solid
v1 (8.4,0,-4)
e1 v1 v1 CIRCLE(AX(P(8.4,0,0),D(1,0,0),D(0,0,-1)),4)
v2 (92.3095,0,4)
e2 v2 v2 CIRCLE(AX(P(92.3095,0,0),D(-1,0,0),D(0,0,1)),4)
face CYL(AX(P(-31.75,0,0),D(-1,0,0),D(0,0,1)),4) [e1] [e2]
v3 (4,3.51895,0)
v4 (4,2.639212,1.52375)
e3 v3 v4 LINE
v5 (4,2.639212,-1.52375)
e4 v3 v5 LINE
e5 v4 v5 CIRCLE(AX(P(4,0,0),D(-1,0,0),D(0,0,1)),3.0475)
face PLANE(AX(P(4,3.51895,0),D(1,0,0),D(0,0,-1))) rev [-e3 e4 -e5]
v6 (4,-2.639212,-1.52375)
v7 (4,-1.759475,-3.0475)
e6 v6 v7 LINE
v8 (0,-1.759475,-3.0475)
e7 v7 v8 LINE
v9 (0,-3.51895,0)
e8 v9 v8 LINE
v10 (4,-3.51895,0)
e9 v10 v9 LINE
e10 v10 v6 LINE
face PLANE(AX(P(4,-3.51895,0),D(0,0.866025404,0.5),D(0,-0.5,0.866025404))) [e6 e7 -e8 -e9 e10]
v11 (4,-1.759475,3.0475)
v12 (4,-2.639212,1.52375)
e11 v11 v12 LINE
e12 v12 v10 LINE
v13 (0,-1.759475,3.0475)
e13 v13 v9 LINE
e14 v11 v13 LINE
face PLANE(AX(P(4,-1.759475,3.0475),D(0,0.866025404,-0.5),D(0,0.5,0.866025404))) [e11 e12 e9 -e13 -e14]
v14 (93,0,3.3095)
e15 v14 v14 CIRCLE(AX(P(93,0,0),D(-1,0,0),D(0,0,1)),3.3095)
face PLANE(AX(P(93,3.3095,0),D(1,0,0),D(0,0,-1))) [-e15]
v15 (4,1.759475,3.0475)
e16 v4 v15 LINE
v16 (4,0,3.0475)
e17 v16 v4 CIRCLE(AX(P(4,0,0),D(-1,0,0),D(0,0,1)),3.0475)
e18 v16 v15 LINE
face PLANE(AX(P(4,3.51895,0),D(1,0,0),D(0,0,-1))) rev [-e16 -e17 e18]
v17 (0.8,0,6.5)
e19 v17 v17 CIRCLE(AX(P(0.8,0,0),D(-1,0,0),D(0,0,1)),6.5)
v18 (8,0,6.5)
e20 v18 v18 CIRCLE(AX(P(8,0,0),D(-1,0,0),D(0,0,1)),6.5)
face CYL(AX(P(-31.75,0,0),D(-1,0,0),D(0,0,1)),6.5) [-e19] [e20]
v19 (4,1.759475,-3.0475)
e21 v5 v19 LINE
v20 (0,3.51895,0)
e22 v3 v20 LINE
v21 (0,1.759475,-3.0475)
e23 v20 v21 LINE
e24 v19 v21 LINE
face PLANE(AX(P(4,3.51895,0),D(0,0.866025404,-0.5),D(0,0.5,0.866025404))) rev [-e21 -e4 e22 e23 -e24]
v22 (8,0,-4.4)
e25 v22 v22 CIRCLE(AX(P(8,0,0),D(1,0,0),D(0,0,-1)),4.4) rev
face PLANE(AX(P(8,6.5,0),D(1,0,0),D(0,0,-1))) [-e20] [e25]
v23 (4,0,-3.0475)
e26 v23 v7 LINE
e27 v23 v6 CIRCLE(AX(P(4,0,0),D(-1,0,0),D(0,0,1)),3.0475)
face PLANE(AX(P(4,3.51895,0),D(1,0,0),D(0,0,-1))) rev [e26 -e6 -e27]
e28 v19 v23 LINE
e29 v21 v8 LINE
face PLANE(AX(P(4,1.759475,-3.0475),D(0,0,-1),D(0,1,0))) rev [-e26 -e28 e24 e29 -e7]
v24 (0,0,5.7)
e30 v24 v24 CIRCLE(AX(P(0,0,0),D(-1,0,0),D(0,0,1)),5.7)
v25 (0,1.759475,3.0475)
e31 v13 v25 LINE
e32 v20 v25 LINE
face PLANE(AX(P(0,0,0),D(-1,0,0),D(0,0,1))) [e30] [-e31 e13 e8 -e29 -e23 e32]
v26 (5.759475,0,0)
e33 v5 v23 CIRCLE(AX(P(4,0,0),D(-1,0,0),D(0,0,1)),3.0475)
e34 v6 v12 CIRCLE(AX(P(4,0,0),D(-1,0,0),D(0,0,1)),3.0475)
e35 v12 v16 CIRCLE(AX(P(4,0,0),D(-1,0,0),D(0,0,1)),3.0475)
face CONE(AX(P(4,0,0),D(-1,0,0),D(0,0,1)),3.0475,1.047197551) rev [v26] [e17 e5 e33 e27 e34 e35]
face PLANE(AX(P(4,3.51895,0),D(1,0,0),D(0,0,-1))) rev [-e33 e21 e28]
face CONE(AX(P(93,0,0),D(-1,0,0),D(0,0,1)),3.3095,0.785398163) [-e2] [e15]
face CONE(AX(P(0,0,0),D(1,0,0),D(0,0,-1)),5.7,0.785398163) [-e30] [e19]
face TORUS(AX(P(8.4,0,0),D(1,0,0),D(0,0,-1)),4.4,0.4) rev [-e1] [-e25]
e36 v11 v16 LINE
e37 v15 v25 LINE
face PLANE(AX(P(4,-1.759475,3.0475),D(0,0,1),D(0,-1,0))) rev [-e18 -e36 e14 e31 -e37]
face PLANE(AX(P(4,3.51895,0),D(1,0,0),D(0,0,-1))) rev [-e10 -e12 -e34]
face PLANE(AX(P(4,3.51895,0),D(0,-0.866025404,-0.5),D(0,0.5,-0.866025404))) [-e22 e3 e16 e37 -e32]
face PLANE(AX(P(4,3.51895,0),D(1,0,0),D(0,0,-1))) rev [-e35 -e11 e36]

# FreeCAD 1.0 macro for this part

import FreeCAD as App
import Part
import Sketcher
from FreeCAD import Vector
Q = App.Units.Quantity


def edges_at(feature, points):
    """Names of the edges that pass closest to the given points."""
    edges = feature.Shape.Edges
    near = lambda p: min(range(len(edges)), key=lambda i: edges[i].distToShape(Part.Vertex(*p))[0])
    return sorted({f"Edge{near(p) + 1}" for p in points})


def add_polygon(sketch, points):
    """Adds a closed chain of lines whose ends are joined by coincident constraints."""
    first, n = sketch.GeometryCount, len(points)
    for a, b in zip(points, points[1:] + points[:1]):
        sketch.addGeometry(Part.LineSegment(App.Vector(*a, 0), App.Vector(*b, 0)), False)
    for i in range(n):
        sketch.addConstraint(Sketcher.Constraint("Coincident", first + i, 2, first + (i + 1) % n, 1))

doc = App.newDocument("Part")
body = doc.addObject("PartDesign::Body", "Body")

# Sketch on XY plane
sketch1 = body.newObject("Sketcher::SketchObject", "Sketch")
sketch1.AttachmentSupport = (doc.getObject("XY_Plane"), [""])
sketch1.MapMode = "FlatFace"
add_polygon(sketch1, [(0, 5.7), (0, 0), (93, 0), (93, 3.3), (92.3, 4), (8, 4), (8, 6.5), (0.8, 6.5)])  # lines 0-7
sketch1.addConstraint([
    Sketcher.Constraint("Vertical", 0),
    Sketcher.Constraint("Horizontal", 1),
    Sketcher.Constraint("Vertical", 2),
    Sketcher.Constraint("Horizontal", 4),
    Sketcher.Constraint("Vertical", 5),
    Sketcher.Constraint("Horizontal", 6),
    Sketcher.Constraint("Coincident", 0, 2, -1, 1),
    Sketcher.Constraint("Perpendicular", 3, 7),
    Sketcher.Constraint("DistanceX", 1, 1, 1, 2, 93.0),
    Sketcher.Constraint("Angle", 3, Q("135 deg")),
    Sketcher.Constraint("DistanceX", 6, 2, 6, 1, 7.2),
    Sketcher.Constraint("DistanceY", 0, 2, 0, 1, 5.7),
    Sketcher.Constraint("DistanceY", 5, 1, 5, 2, 2.5),
    Sketcher.Constraint("DistanceY", -1, 1, 3, 2, 4.0),
    Sketcher.Constraint("DistanceX", 4, 2, 4, 1, 84.3095),
])
revolution = body.newObject("PartDesign::Revolution", "Revolution")
revolution.Profile = sketch1
revolution.ReferenceAxis = (sketch1, ["H_Axis"])
revolution.Angle = 360
doc.recompute()

fillet = body.newObject("PartDesign::Fillet", "Fillet")
fillet.Base = (revolution, edges_at(revolution, [(8, 0, -4)]))
fillet.Radius = 0.4

# Sketch on XY plane
sketch2 = body.newObject("Sketcher::SketchObject", "Sketch001")
sketch2.AttachmentSupport = (doc.getObject("XY_Plane"), [""])
sketch2.MapMode = "FlatFace"
add_polygon(sketch2, [(4, 3), (0, 3), (0, 0), (5.8, 0)])  # lines 0-3
sketch2.addConstraint([
    Sketcher.Constraint("Horizontal", 0),
    Sketcher.Constraint("Vertical", 1),
    Sketcher.Constraint("Horizontal", 2),
    Sketcher.Constraint("Coincident", 1, 2, -1, 1),
    Sketcher.Constraint("DistanceX", 0, 2, 0, 1, 4.0),
    Sketcher.Constraint("Angle", 3, Q("120 deg")),
    Sketcher.Constraint("DistanceY", 1, 2, 1, 1, 3.0475),
])
groove = body.newObject("PartDesign::Groove", "Groove")
groove.Profile = sketch2
groove.ReferenceAxis = (sketch2, ["H_Axis"])
groove.Angle = 360

# Sketch on YZ plane
sketch3 = body.newObject("Sketcher::SketchObject", "Sketch002")
sketch3.AttachmentSupport = (doc.getObject("YZ_Plane"), [""])
sketch3.MapMode = "FlatFace"
add_polygon(sketch3, [(3.5, 0), (1.8, -3), (-1.8, -3), (-3.5, 0), (-1.8, 3), (1.8, 3)])  # lines 0-5
sketch3.addConstraint([
    Sketcher.Constraint("Horizontal", 1),
    Sketcher.Constraint("Horizontal", 4),
    Sketcher.Constraint("Symmetric", 0, 2, 3, 2, -1, 1),
    Sketcher.Constraint("Symmetric", 2, 2, 5, 2, -1, 1),
    Sketcher.Constraint("PointOnObject", 2, 2, -1),
    Sketcher.Constraint("Parallel", 2, 5),
    Sketcher.Constraint("Vertical", 1, 2, 3, 2),
    Sketcher.Constraint("Angle", 0, Q("-120 deg")),
    Sketcher.Constraint("DistanceY", 1, 2, 3, 2, 6.095),
    Sketcher.Constraint("DistanceX", 1, 2, 1, 1, 3.51895),
])
pocket1 = body.newObject("PartDesign::Pocket", "Pocket")
pocket1.Profile = sketch3
pocket1.Length = 4
pocket1.Reversed = True

doc.recompute()
